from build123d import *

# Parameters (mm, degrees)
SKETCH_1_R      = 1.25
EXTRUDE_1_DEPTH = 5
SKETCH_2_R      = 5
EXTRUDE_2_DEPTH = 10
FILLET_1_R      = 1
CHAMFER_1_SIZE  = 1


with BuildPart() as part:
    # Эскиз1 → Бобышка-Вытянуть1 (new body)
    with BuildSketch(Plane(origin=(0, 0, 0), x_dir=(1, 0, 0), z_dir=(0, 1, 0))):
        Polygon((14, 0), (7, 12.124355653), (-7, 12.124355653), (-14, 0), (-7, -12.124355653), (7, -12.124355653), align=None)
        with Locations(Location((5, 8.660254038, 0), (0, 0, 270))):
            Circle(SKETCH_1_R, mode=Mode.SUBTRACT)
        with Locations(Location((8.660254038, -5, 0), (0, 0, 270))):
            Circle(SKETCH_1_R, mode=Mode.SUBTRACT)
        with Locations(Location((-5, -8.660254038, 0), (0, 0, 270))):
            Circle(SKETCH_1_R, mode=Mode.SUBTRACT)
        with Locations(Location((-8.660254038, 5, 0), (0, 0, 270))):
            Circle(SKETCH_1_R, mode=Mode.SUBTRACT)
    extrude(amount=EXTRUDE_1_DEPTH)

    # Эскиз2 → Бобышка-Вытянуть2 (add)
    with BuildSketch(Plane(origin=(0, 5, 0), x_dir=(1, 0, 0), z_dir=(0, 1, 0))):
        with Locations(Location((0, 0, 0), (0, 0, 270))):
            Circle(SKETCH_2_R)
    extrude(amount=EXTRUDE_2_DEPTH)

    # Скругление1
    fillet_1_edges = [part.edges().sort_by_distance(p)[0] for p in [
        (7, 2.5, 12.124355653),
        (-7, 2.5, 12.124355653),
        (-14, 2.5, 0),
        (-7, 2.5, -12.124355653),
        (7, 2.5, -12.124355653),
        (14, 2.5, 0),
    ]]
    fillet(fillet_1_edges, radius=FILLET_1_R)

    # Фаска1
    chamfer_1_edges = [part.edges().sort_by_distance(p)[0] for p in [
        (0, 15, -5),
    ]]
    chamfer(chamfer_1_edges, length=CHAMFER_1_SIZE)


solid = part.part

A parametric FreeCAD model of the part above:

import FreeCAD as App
import Part
import Sketcher
Q = App.Units.Quantity


def edges_at(feature, points):
    """Names of the edges that pass closest to the given points."""
    edges = feature.Shape.Edges
    near = lambda p: min(range(len(edges)), key=lambda i: edges[i].distToShape(Part.Vertex(*p))[0])
    return sorted({f"Edge{near(p) + 1}" for p in points})

doc = App.newDocument("Part")
body = doc.addObject("PartDesign::Body", "Body")

sketch1 = body.newObject("Sketcher::SketchObject", "Sketch")
sketch1.AttachmentSupport = (doc.getObject("XZ_Plane"), [""])
sketch1.MapMode = "FlatFace"
sketch1.addGeometry([
    Part.LineSegment(App.Vector(14, 0, 0), App.Vector(7, -12.1, 0)),
    Part.LineSegment(App.Vector(7, -12.1, 0), App.Vector(-7, -12.1, 0)),
    Part.LineSegment(App.Vector(-7, -12.1, 0), App.Vector(-14, 0, 0)),
    Part.LineSegment(App.Vector(-14, 0, 0), App.Vector(-7, 12.1, 0)),
    Part.LineSegment(App.Vector(-7, 12.1, 0), App.Vector(7, 12.1, 0)),
    Part.LineSegment(App.Vector(7, 12.1, 0), App.Vector(14, 0, 0)),
    Part.Circle(App.Vector(-5, 8.7, 0), App.Vector(0, 0, 1), 1.2),
    Part.Circle(App.Vector(8.7, 5, 0), App.Vector(0, 0, 1), 1.2),
    Part.Circle(App.Vector(-8.7, -5, 0), App.Vector(0, 0, 1), 1.2),
    Part.Circle(App.Vector(5, -8.7, 0), App.Vector(0, 0, 1), 1.2),
], False)
sketch1.addConstraint([
    Sketcher.Constraint("Coincident", 0, 2, 1, 1),
    Sketcher.Constraint("Coincident", 1, 2, 2, 1),
    Sketcher.Constraint("Coincident", 2, 2, 3, 1),
    Sketcher.Constraint("Coincident", 3, 2, 4, 1),
    Sketcher.Constraint("Coincident", 4, 2, 5, 1),
    Sketcher.Constraint("Coincident", 5, 2, 0, 1),
    Sketcher.Constraint("Horizontal", 1),
    Sketcher.Constraint("Horizontal", 4),
    Sketcher.Constraint("Equal", 6, 7),
    Sketcher.Constraint("Equal", 7, 8),
    Sketcher.Constraint("Equal", 8, 9),
    Sketcher.Constraint("Symmetric", 7, 3, 8, 3, -1, 1),
    Sketcher.Constraint("Symmetric", 6, 3, 9, 3, -1, 1),
    Sketcher.Constraint("Symmetric", 0, 2, 3, 2, -1, 1),
    Sketcher.Constraint("Symmetric", 2, 2, 5, 2, -1, 1),
    Sketcher.Constraint("PointOnObject", 2, 2, -1),
    Sketcher.Constraint("Parallel", 2, 5),
    Sketcher.Constraint("Vertical", 1, 2, 3, 2),
    Sketcher.Constraint("Diameter", 6, Q("2.5 mm")),
    Sketcher.Constraint("DistanceX", 1, 2, 1, 1, Q("14 mm")),
    Sketcher.Constraint("Angle", 0, Q("-120 deg")),
    Sketcher.Constraint("Distance", 0, Q("14 mm")),
    Sketcher.Constraint("DistanceX", 6, 3, -1, 1, Q("5 mm")),
    Sketcher.Constraint("DistanceY", -1, 1, 7, 3, Q("5 mm")),
    Sketcher.Constraint("DistanceY", 0, 2, 9, 3, Q("3.464102 mm")),
    Sketcher.Constraint("DistanceX", 8, 3, 7, 3, Q("17.320508 mm")),
])
pad1 = body.newObject("PartDesign::Pad", "Pad")
pad1.Profile = sketch1
pad1.Length = 5
pad1.Reversed = True

sketch2 = body.newObject("Sketcher::SketchObject", "Sketch001")
sketch2.AttachmentSupport = (doc.getObject("XZ_Plane"), [""])
sketch2.MapMode = "FlatFace"
sketch2.AttachmentOffset = App.Placement(App.Vector(0, 0, -5), App.Rotation())
sketch2.addGeometry(Part.Circle(App.Vector(0, 0, 0), App.Vector(0, 0, 1), 5), False)
sketch2.addConstraint([
    Sketcher.Constraint("Coincident", 0, 3, -1, 1),
    Sketcher.Constraint("Diameter", 0, Q("10 mm")),
])
pad2 = body.newObject("PartDesign::Pad", "Pad001")
pad2.Profile = sketch2
pad2.Length = 10
pad2.Reversed = True
doc.recompute()

fillet = body.newObject("PartDesign::Fillet", "Fillet")
fillet.Base = (pad2, edges_at(pad2, [
    (7, 2.5, 12.124),
    (-7, 2.5, 12.124),
    (-14, 2.5, 0),
    (-7, 2.5, -12.124),
    (7, 2.5, -12.124),
    (14, 2.5, 0),
]))
fillet.Radius = 1
doc.recompute()

chamfer = body.newObject("PartDesign::Chamfer", "Chamfer")
chamfer.Base = (fillet, edges_at(fillet, [(0, 15, -5)]))
chamfer.Size = 1

doc.recompute()
